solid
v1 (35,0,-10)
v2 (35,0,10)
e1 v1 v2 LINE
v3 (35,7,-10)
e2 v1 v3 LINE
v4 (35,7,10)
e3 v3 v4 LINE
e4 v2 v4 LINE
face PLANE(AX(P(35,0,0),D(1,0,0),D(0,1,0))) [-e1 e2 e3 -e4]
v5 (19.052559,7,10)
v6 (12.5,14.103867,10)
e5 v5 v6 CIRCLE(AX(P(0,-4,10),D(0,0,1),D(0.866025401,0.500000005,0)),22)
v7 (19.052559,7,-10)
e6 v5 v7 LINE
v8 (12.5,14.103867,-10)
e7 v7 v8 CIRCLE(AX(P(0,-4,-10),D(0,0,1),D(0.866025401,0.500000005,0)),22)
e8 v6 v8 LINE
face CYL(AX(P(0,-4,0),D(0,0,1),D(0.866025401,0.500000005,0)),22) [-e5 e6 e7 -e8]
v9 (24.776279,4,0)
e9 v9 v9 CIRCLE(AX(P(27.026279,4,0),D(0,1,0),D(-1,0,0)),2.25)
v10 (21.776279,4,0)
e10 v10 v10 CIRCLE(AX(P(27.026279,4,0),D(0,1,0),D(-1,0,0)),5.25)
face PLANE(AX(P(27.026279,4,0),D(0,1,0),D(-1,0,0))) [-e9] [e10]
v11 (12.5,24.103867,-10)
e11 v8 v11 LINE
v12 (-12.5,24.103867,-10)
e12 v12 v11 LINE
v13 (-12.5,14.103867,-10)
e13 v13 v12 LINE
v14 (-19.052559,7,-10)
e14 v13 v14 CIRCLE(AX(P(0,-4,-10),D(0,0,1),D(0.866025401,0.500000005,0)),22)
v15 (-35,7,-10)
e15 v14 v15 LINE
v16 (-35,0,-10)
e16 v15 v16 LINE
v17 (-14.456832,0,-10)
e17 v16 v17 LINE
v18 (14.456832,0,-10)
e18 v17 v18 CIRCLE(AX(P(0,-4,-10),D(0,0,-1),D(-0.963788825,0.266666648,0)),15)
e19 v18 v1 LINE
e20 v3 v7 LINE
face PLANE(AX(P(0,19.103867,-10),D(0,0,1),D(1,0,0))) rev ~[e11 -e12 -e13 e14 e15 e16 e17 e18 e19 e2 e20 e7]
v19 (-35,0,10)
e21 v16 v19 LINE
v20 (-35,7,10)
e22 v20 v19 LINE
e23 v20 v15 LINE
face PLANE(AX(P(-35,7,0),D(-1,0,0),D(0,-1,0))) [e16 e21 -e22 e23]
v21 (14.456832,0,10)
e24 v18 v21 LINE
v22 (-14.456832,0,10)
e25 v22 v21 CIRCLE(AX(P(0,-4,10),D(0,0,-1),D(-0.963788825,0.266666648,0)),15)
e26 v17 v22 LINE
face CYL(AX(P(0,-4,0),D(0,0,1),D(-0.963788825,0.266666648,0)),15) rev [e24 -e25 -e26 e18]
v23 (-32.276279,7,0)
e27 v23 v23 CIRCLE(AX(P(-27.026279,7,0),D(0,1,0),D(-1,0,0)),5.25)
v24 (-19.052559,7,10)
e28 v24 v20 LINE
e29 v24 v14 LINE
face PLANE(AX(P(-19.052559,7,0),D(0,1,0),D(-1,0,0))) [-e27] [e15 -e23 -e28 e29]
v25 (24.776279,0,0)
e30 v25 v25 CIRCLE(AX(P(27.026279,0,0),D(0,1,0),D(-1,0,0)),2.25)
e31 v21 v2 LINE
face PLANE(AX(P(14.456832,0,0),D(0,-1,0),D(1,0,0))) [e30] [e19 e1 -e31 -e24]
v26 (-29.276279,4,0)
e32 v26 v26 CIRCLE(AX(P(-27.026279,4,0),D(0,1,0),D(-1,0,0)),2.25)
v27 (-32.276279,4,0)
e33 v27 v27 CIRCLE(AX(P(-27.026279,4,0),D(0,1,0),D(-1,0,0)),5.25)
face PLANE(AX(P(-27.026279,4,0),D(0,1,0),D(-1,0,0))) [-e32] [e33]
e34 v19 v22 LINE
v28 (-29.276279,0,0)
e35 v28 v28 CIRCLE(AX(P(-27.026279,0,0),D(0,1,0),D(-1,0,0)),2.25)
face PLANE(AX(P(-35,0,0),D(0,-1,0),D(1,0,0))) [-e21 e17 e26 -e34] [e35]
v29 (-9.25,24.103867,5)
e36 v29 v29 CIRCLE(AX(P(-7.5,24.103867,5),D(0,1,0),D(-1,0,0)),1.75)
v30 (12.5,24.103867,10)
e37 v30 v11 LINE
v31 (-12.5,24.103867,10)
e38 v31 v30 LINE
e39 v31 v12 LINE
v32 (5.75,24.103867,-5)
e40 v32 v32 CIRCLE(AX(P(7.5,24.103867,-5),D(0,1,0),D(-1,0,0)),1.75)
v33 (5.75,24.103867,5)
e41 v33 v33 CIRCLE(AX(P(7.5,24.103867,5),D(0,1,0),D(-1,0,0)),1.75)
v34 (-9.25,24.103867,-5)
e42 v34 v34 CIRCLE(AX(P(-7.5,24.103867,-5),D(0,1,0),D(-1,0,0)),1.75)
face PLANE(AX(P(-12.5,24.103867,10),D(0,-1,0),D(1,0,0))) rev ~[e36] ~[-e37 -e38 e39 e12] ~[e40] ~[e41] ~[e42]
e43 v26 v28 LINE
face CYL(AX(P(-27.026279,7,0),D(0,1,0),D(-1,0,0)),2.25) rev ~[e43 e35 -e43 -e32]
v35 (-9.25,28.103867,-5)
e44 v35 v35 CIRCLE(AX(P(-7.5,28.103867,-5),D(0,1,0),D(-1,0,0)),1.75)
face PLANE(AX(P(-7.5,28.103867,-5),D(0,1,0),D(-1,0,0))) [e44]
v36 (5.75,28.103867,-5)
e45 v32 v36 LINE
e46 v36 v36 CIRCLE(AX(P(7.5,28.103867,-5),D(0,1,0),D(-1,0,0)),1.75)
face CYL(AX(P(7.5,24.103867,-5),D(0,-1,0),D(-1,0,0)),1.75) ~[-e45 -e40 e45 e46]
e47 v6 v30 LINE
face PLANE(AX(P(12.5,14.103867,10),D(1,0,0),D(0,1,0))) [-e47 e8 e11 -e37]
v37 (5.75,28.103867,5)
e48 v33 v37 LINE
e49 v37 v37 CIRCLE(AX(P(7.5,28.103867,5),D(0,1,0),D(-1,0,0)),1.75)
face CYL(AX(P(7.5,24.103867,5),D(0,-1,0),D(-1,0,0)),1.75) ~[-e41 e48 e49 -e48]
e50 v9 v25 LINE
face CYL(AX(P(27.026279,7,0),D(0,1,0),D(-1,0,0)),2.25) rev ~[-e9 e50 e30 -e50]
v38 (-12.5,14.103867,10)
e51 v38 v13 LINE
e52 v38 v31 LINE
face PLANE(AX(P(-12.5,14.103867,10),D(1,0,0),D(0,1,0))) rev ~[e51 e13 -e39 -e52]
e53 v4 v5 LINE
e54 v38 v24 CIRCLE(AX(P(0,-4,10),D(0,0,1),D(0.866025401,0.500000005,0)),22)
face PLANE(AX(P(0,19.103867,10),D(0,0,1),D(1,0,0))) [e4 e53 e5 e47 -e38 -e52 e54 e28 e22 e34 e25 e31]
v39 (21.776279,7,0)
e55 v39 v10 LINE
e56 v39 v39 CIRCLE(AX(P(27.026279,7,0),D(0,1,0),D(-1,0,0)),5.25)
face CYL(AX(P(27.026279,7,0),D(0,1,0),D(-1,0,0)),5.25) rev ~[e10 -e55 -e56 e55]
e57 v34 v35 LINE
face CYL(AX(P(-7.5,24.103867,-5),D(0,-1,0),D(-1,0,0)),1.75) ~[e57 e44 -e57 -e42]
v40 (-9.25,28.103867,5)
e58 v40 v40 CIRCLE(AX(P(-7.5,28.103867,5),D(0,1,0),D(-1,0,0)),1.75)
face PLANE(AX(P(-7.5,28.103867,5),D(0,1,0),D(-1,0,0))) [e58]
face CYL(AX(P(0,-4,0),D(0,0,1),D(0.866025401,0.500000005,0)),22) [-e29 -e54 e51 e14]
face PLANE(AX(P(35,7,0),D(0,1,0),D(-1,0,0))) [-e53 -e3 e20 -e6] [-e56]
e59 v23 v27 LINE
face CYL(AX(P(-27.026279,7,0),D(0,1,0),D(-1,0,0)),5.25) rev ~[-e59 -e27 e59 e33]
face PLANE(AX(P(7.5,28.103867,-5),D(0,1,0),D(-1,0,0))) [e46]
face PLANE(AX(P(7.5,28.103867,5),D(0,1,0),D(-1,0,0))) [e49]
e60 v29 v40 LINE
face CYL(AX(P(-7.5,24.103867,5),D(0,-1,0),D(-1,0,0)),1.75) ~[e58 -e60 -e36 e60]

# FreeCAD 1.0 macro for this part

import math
import FreeCAD as App
import Part
import Sketcher

V = App.Vector

doc = App.newDocument("Part")
body = doc.addObject("PartDesign::Body", "Body")

sketch1 = body.newObject("Sketcher::SketchObject", "Sketch")
sketch1.AttachmentSupport = (doc.getObject("XY_Plane"), [""])
sketch1.MapMode = "FlatFace"
sketch1.addGeometry([
    Part.LineSegment(V(-35, 7, 0), V(-35, 0, 0)),
    Part.LineSegment(V(-35, 0, 0), V(-14, 0, 0)),
    Part.ArcOfCircle(Part.Circle(V(0, -4, 0), V(0, 0, 1), 15), math.radians(15), math.radians(165)),
    Part.LineSegment(V(14, 0, 0), V(35, 0, 0)),
    Part.LineSegment(V(35, 0, 0), V(35, 7, 0)),
    Part.LineSegment(V(35, 7, 0), V(19, 7, 0)),
    Part.ArcOfCircle(Part.Circle(V(0, -4, 0), V(0, 0, 1), 22), math.radians(30), math.radians(150)),
    Part.LineSegment(V(-19, 7, 0), V(-35, 7, 0)),
], False)
sketch1.addConstraint([
    Sketcher.Constraint("Coincident", 0, 2, 1, 1),
    Sketcher.Constraint("Coincident", 1, 2, 2, 2),
    Sketcher.Constraint("Coincident", 2, 1, 3, 1),
    Sketcher.Constraint("Coincident", 3, 2, 4, 1),
    Sketcher.Constraint("Coincident", 4, 2, 5, 1),
    Sketcher.Constraint("Coincident", 5, 2, 6, 1),
    Sketcher.Constraint("Coincident", 6, 2, 7, 1),
    Sketcher.Constraint("Coincident", 7, 2, 0, 1),
    Sketcher.Constraint("Vertical", 0),
    Sketcher.Constraint("Horizontal", 1),
    Sketcher.Constraint("Horizontal", 3),
    Sketcher.Constraint("Vertical", 4),
    Sketcher.Constraint("Horizontal", 5),
    Sketcher.Constraint("Horizontal", 7),
    Sketcher.Constraint("Coincident", 6, 3, 2, 3),
    Sketcher.Constraint("Symmetric", 1, 2, 2, 1, -1, 1),
    Sketcher.Constraint("Symmetric", 0, 2, 3, 2, -2),
    Sketcher.Constraint("Horizontal", 5, 2, 6, 2),
    Sketcher.Constraint("Radius", 2, 15.0),
    Sketcher.Constraint("Radius", 6, 22.0),
    Sketcher.Constraint("DistanceY", 0, 2, 0, 1, 7.0),
    Sketcher.Constraint("DistanceY", 2, 3, -1, 1, 4.0),
    Sketcher.Constraint("DistanceX", 0, 2, -1, 1, 35.0),
])
pad1 = body.newObject("PartDesign::Pad", "Pad")
pad1.Profile = sketch1
pad1.Length = 20
pad1.Midplane = True

sketch2 = body.newObject("Sketcher::SketchObject", "Sketch001")
sketch2.AttachmentSupport = (doc.getObject("XZ_Plane"), [""])
sketch2.MapMode = "FlatFace"
sketch2.AttachmentOffset = App.Placement(V(0, 0, -7), App.Rotation())
sketch2.addGeometry([
    Part.Circle(V(27, 0, 0), V(0, 0, 1), 2.2),
    Part.Circle(V(-27, 0, 0), V(0, 0, 1), 2.2),
], False)
sketch2.addConstraint([
    Sketcher.Constraint("Equal", 0, 1),
    Sketcher.Constraint("Symmetric", 0, 3, 1, 3, -1, 1),
    Sketcher.Constraint("PointOnObject", 0, 3, -1),
    Sketcher.Constraint("Diameter", 0, 4.5),
    Sketcher.Constraint("DistanceX", -1, 1, 0, 3, 27.026279),
])
pocket1 = body.newObject("PartDesign::Pocket", "Pocket")
pocket1.Profile = sketch2
pocket1.Length = 25
pocket1.Reversed = True

sketch3 = body.newObject("Sketcher::SketchObject", "Sketch002")
sketch3.AttachmentSupport = (doc.getObject("XZ_Plane"), [""])
sketch3.MapMode = "FlatFace"
sketch3.AttachmentOffset = App.Placement(V(0, 0, -7), App.Rotation())
sketch3.addGeometry([
    Part.Circle(V(-27, 0, 0), V(0, 0, 1), 5.2),
    Part.Circle(V(-27, 0, 0), V(0, 0, 1), 2.2),
    Part.Circle(V(27, 0, 0), V(0, 0, 1), 5.2),
], False)
sketch3.addConstraint([
    Sketcher.Constraint("Coincident", 1, 3, 0, 3),
    Sketcher.Constraint("Equal", 0, 2),
    Sketcher.Constraint("Symmetric", 0, 3, 2, 3, -1, 1),
    Sketcher.Constraint("PointOnObject", 0, 3, -1),
    Sketcher.Constraint("Diameter", 0, 10.5),
    Sketcher.Constraint("Diameter", 1, 4.5),
    Sketcher.Constraint("DistanceX", 0, 3, -1, 1, 27.026279),
])
pocket2 = body.newObject("PartDesign::Pocket", "Pocket001")
pocket2.Profile = sketch3
pocket2.Length = 3
pocket2.Reversed = True

sketch4 = body.newObject("Sketcher::SketchObject", "Sketch003")
sketch4.AttachmentSupport = (doc.getObject("XY_Plane"), [""])
sketch4.MapMode = "FlatFace"
sketch4.AttachmentOffset = App.Placement(V(0, 0, 10), App.Rotation())
sketch4.addGeometry([
    Part.LineSegment(V(-12, 24, 0), V(-12, 14, 0)),
    Part.LineSegment(V(-12, 14, 0), V(12, 14, 0)),
    Part.LineSegment(V(12, 14, 0), V(12, 24, 0)),
    Part.LineSegment(V(12, 24, 0), V(-12, 24, 0)),
], False)
sketch4.addConstraint([
    Sketcher.Constraint("Coincident", 0, 2, 1, 1),
    Sketcher.Constraint("Coincident", 1, 2, 2, 1),
    Sketcher.Constraint("Coincident", 2, 2, 3, 1),
    Sketcher.Constraint("Coincident", 3, 2, 0, 1),
    Sketcher.Constraint("Vertical", 0),
    Sketcher.Constraint("Horizontal", 1),
    Sketcher.Constraint("Vertical", 2),
    Sketcher.Constraint("Horizontal", 3),
    Sketcher.Constraint("DistanceX", 1, 1, 1, 2, 25.0),
    Sketcher.Constraint("DistanceY", 0, 2, 0, 1, 10.0),
    Sketcher.Constraint("DistanceX", 0, 2, -1, 1, 12.5),
    Sketcher.Constraint("DistanceY", -1, 1, 0, 2, 14.103867),
])
pad2 = body.newObject("PartDesign::Pad", "Pad001")
pad2.Profile = sketch4
pad2.Length = 20
pad2.Reversed = True

sketch5 = body.newObject("Sketcher::SketchObject", "Sketch004")
sketch5.AttachmentSupport = (doc.getObject("XZ_Plane"), [""])
sketch5.MapMode = "FlatFace"
sketch5.AttachmentOffset = App.Placement(V(0, 0, -24.103867), App.Rotation())
sketch5.addGeometry([
    Part.Circle(V(-7.5, -5, 0), V(0, 0, 1), 1.8),
    Part.Circle(V(7.5, -5, 0), V(0, 0, 1), 1.8),
    Part.Circle(V(-7.5, 5, 0), V(0, 0, 1), 1.8),
    Part.Circle(V(7.5, 5, 0), V(0, 0, 1), 1.8),
], False)
sketch5.addConstraint([
    Sketcher.Constraint("Equal", 0, 1),
    Sketcher.Constraint("Equal", 1, 2),
    Sketcher.Constraint("Equal", 2, 3),
    Sketcher.Constraint("Symmetric", 1, 3, 2, 3, -1, 1),
    Sketcher.Constraint("Symmetric", 0, 3, 3, 3, -1, 1),
    Sketcher.Constraint("Symmetric", 0, 3, 1, 3, -2),
    Sketcher.Constraint("Diameter", 0, 3.5),
    Sketcher.Constraint("DistanceY", 0, 3, -1, 1, 5.0),
    Sketcher.Constraint("DistanceX", 0, 3, 1, 3, 15.0),
])
pad3 = body.newObject("PartDesign::Pad", "Pad002")
pad3.Profile = sketch5
pad3.Length = 4
pad3.Reversed = True

doc.recompute()
